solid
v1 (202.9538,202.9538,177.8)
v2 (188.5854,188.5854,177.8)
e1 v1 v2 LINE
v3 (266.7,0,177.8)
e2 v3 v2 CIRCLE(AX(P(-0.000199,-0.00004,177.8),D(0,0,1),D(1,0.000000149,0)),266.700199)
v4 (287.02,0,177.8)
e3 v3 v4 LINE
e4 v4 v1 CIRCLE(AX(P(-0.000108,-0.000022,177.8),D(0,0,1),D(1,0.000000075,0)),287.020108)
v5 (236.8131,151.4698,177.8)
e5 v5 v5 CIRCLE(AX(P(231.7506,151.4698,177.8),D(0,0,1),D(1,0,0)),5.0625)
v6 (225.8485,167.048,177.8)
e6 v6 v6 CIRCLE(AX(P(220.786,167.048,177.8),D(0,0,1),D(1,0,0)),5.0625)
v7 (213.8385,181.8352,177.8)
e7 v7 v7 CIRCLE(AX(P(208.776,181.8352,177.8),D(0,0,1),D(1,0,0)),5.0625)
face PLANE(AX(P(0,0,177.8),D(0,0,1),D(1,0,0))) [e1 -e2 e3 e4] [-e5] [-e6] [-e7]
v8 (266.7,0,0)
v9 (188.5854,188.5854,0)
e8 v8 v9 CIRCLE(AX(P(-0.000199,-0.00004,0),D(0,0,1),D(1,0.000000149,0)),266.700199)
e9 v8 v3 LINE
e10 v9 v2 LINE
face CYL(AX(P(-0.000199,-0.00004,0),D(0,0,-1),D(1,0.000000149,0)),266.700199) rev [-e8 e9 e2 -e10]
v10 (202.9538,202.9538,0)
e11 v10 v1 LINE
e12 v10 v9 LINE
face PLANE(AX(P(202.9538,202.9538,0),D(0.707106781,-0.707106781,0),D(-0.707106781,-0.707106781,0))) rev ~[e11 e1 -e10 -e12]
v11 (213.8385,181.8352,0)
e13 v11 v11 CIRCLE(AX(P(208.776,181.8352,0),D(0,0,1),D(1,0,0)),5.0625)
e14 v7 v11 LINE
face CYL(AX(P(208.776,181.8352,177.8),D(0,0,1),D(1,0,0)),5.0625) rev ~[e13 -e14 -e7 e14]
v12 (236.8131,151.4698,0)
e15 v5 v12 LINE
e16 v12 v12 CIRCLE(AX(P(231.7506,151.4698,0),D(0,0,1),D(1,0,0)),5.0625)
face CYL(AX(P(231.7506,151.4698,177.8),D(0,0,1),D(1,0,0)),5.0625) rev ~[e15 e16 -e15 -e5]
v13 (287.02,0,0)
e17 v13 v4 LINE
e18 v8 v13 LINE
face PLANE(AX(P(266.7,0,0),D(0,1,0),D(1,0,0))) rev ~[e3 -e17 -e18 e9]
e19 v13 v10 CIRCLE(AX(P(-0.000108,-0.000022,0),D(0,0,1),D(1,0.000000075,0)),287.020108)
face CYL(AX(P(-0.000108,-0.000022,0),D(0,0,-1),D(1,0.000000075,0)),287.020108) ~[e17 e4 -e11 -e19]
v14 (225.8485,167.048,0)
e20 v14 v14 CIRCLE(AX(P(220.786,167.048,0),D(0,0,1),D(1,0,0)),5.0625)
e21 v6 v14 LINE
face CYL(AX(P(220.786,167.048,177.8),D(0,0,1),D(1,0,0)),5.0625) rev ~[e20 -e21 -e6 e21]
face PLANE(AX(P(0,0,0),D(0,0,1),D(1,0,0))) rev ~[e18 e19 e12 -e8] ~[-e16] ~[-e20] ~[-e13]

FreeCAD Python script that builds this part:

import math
import FreeCAD as App
import Part
import Sketcher
Q = App.Units.Quantity

doc = App.newDocument("Part")
params = doc.addObject("Spreadsheet::Sheet", "Params")
for row, (alias, value) in enumerate([
    ("sketch1_radius", "11.3 in"),
    ("sketch1_radius2", "10.5 in"),
    ("pad1_length", "7 in"),
    ("pocket1_length", "7 in"),
], start=1):
    params.set(f"A{row}", alias)
    params.set(f"B{row}", "=" + value)
    params.setAlias(f"B{row}", alias)

body = doc.addObject("PartDesign::Body", "Body")

sketch1 = body.newObject("Sketcher::SketchObject", "Sketch")
sketch1.AttachmentSupport = (doc.getObject("XY_Plane"), [""])
sketch1.MapMode = "FlatFace"
sketch1.addGeometry([
    Part.LineSegment(App.Vector(266.7, 0, 0), App.Vector(287.02, 0, 0)),
    Part.ArcOfCircle(Part.Circle(App.Vector(0, 0, 0), App.Vector(0, 0, 1), 287.02), math.radians(0), math.radians(45)),
    Part.LineSegment(App.Vector(202.9538, 202.9538, 0), App.Vector(188.5854, 188.5854, 0)),
    Part.ArcOfCircle(Part.Circle(App.Vector(0, 0, 0), App.Vector(0, 0, 1), 266.7), math.radians(0), math.radians(45)),
], False)
sketch1.addConstraint([
    Sketcher.Constraint("Coincident", 0, 2, 1, 1),
    Sketcher.Constraint("Coincident", 1, 2, 2, 1),
    Sketcher.Constraint("Coincident", 2, 2, 3, 2),
    Sketcher.Constraint("Coincident", 3, 1, 0, 1),
    Sketcher.Constraint("Horizontal", 0),
    Sketcher.Constraint("Coincident", 1, 3, -1, 1),
    Sketcher.Constraint("Coincident", 3, 3, -1, 1),
    Sketcher.Constraint("PointOnObject", 0, 2, -1),
    Sketcher.Constraint("Radius", 1, Q("11.3 in")),
    Sketcher.Constraint("Radius", 3, Q("10.5 in")),
    Sketcher.Constraint("Angle", 2, Q("-135 deg")),
    Sketcher.Constraint("DistanceX", -1, 1, 1, 2, Q("7.9903 in")),
])
sketch1.setExpression("Constraints[8]", "Params.sketch1_radius")
sketch1.setExpression("Constraints[9]", "Params.sketch1_radius2")
pad1 = body.newObject("PartDesign::Pad", "Pad")
pad1.Profile = sketch1
pad1.setExpression("Length", "Params.pad1_length")

sketch2 = body.newObject("Sketcher::SketchObject", "Sketch001")
sketch2.AttachmentSupport = (doc.getObject("XY_Plane"), [""])
sketch2.MapMode = "FlatFace"
sketch2.AttachmentOffset = App.Placement(App.Vector(0, 0, 7 * 25.4), App.Rotation())
sketch2.addGeometry([
    Part.Circle(App.Vector(208.776, 181.8352, 0), App.Vector(0, 0, 1), 5.0625),
    Part.Circle(App.Vector(220.786, 167.048, 0), App.Vector(0, 0, 1), 5.0625),
    Part.Circle(App.Vector(231.7506, 151.4698, 0), App.Vector(0, 0, 1), 5.0625),
], False)
sketch2.addConstraint([
    Sketcher.Constraint("Equal", 0, 1),
    Sketcher.Constraint("Equal", 1, 2),
    Sketcher.Constraint("Diameter", 0, 10.125),
    Sketcher.Constraint("DistanceY", -1, 1, 1, 3, Q("6.5767 in")),
    Sketcher.Constraint("DistanceX", 0, 3, 2, 3, Q("0.9045 in")),
    Sketcher.Constraint("DistanceY", 2, 3, 0, 3, Q("1.1955 in")),
    Sketcher.Constraint("DistanceX", -1, 1, 0, 3, 208.776),
    Sketcher.Constraint("DistanceY", -1, 1, 0, 3, 181.8352),
    Sketcher.Constraint("DistanceX", -1, 1, 1, 3, 220.786),
])
pocket1 = body.newObject("PartDesign::Pocket", "Pocket")
pocket1.Profile = sketch2
pocket1.setExpression("Length", "Params.pocket1_length")

doc.recompute()
